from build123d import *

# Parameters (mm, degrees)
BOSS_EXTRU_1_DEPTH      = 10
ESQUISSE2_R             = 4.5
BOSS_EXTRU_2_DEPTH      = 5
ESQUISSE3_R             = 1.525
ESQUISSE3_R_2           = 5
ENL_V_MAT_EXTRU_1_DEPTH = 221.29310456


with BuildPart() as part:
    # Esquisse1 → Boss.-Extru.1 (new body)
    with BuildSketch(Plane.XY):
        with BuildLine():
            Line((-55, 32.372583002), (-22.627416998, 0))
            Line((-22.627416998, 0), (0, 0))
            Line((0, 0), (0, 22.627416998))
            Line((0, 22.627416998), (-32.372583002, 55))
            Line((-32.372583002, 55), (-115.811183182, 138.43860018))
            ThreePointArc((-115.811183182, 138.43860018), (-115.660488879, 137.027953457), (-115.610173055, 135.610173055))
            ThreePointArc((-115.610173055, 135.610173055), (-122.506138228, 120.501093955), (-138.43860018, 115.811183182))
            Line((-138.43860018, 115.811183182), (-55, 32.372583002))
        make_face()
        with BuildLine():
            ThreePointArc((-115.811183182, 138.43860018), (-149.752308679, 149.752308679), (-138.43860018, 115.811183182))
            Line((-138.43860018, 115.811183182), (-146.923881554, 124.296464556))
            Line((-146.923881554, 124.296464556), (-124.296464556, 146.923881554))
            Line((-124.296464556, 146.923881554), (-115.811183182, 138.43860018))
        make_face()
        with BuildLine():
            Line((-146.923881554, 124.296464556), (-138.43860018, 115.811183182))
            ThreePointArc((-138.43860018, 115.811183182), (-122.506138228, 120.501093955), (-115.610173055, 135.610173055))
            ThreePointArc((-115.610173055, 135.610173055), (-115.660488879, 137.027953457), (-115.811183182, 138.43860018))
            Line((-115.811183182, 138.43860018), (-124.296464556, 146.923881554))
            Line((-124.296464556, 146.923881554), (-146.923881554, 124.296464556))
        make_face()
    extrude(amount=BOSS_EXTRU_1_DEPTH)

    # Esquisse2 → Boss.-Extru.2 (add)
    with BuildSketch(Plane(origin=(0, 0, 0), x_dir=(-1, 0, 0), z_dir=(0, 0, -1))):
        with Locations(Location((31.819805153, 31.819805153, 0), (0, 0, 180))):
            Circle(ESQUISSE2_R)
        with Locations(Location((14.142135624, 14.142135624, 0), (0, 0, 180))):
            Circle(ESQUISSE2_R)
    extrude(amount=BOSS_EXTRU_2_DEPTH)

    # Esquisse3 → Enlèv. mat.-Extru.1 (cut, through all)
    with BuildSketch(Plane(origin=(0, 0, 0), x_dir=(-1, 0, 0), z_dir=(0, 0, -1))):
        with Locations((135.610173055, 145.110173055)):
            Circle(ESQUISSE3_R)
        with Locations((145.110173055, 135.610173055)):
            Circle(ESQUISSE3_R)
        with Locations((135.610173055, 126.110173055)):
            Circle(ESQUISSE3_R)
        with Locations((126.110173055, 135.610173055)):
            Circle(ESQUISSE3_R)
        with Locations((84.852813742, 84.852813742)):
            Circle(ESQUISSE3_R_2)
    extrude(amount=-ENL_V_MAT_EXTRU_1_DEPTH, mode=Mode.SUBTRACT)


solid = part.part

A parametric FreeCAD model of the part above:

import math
import FreeCAD as App
import Part
import Sketcher

V = App.Vector
Q = App.Units.Quantity

doc = App.newDocument("Part")
body = doc.addObject("PartDesign::Body", "Body")

sketch1 = body.newObject("Sketcher::SketchObject", "Sketch")
sketch1.AttachmentSupport = (doc.getObject("XY_Plane"), [""])
sketch1.MapMode = "FlatFace"
sketch1.addGeometry([
    Part.LineSegment(V(0, 23, 0), V(-116, 138, 0)),
    Part.ArcOfCircle(Part.Circle(V(-136, 136, 0), V(0, 0, 1), 20), math.radians(8), math.radians(262)),
    Part.LineSegment(V(-138, 116, 0), V(-23, 0, 0)),
    Part.LineSegment(V(-23, 0, 0), V(0, 0, 0)),
    Part.LineSegment(V(0, 0, 0), V(0, 23, 0)),
], False)
sketch1.addConstraint([
    Sketcher.Constraint("Coincident", 0, 2, 1, 1),
    Sketcher.Constraint("Coincident", 1, 2, 2, 1),
    Sketcher.Constraint("Coincident", 2, 2, 3, 1),
    Sketcher.Constraint("Coincident", 3, 2, 4, 1),
    Sketcher.Constraint("Coincident", 4, 2, 0, 1),
    Sketcher.Constraint("Horizontal", 3),
    Sketcher.Constraint("Vertical", 4),
    Sketcher.Constraint("Coincident", 3, 2, -1, 1),
    Sketcher.Constraint("Parallel", 0, 2),
    Sketcher.Constraint("Equal", 3, 4),
    Sketcher.Constraint("Equal", 0, 2),
    Sketcher.Constraint("Radius", 1, Q("20 mm")),
    Sketcher.Constraint("Angle", 0, Q("135 deg")),
    Sketcher.Constraint("DistanceY", -1, 1, 0, 2, Q("138.4386 mm")),
    Sketcher.Constraint("DistanceX", 3, 1, 3, 2, Q("22.627417 mm")),
])
pad1 = body.newObject("PartDesign::Pad", "Pad")
pad1.Profile = sketch1
pad1.Length = 10

sketch2 = body.newObject("Sketcher::SketchObject", "Sketch001")
sketch2.AttachmentSupport = (doc.getObject("XY_Plane"), [""])
sketch2.MapMode = "FlatFace"
sketch2.addGeometry([
    Part.Circle(V(-31.8, 31.8, 0), V(0, 0, 1), 4.5),
    Part.Circle(V(-14.1, 14.1, 0), V(0, 0, 1), 4.5),
], False)
sketch2.addConstraint([
    Sketcher.Constraint("Equal", 0, 1),
    Sketcher.Constraint("Diameter", 0, Q("9 mm")),
    Sketcher.Constraint("DistanceX", 0, 3, 1, 3, Q("17.67767 mm")),
    Sketcher.Constraint("DistanceY", 1, 3, 0, 3, Q("17.67767 mm")),
    Sketcher.Constraint("DistanceX", 0, 3, -1, 1, Q("31.819805 mm")),
    Sketcher.Constraint("DistanceY", -1, 1, 0, 3, Q("31.819805 mm")),
])
pad2 = body.newObject("PartDesign::Pad", "Pad001")
pad2.Profile = sketch2
pad2.Length = 5
pad2.Reversed = True

sketch3 = body.newObject("Sketcher::SketchObject", "Sketch002")
sketch3.AttachmentSupport = (doc.getObject("XY_Plane"), [""])
sketch3.MapMode = "FlatFace"
sketch3.addGeometry([
    Part.Circle(V(-135.6, 145.1, 0), V(0, 0, 1), 1.5),
    Part.Circle(V(-145.1, 135.6, 0), V(0, 0, 1), 1.5),
    Part.Circle(V(-135.6, 126.1, 0), V(0, 0, 1), 1.5),
    Part.Circle(V(-126.1, 135.6, 0), V(0, 0, 1), 1.5),
    Part.Circle(V(-84.9, 84.9, 0), V(0, 0, 1), 5),
], False)
sketch3.addConstraint([
    Sketcher.Constraint("Equal", 0, 1),
    Sketcher.Constraint("Equal", 1, 2),
    Sketcher.Constraint("Equal", 2, 3),
    Sketcher.Constraint("Horizontal", 1, 3, 3, 3),
    Sketcher.Constraint("Vertical", 0, 3, 2, 3),
    Sketcher.Constraint("Diameter", 4, Q("10 mm")),
    Sketcher.Constraint("Diameter", 0, Q("3.05 mm")),
    Sketcher.Constraint("DistanceY", 2, 3, 0, 3, Q("19 mm")),
    Sketcher.Constraint("DistanceX", 1, 3, 3, 3, Q("19 mm")),
    Sketcher.Constraint("DistanceX", 1, 3, 0, 3, Q("9.5 mm")),
    Sketcher.Constraint("DistanceY", 1, 3, 0, 3, Q("9.5 mm")),
    Sketcher.Constraint("DistanceX", 2, 3, 4, 3, Q("50.757359 mm")),
    Sketcher.Constraint("DistanceY", 4, 3, 2, 3, Q("41.257359 mm")),
    Sketcher.Constraint("DistanceX", 0, 3, -1, 1, Q("135.610173 mm")),
    Sketcher.Constraint("DistanceY", -1, 1, 0, 3, Q("145.110173 mm")),
])
pocket1 = body.newObject("PartDesign::Pocket", "Pocket")
pocket1.Profile = sketch3
pocket1.Type = "ThroughAll"
pocket1.Reversed = True

doc.recompute()
